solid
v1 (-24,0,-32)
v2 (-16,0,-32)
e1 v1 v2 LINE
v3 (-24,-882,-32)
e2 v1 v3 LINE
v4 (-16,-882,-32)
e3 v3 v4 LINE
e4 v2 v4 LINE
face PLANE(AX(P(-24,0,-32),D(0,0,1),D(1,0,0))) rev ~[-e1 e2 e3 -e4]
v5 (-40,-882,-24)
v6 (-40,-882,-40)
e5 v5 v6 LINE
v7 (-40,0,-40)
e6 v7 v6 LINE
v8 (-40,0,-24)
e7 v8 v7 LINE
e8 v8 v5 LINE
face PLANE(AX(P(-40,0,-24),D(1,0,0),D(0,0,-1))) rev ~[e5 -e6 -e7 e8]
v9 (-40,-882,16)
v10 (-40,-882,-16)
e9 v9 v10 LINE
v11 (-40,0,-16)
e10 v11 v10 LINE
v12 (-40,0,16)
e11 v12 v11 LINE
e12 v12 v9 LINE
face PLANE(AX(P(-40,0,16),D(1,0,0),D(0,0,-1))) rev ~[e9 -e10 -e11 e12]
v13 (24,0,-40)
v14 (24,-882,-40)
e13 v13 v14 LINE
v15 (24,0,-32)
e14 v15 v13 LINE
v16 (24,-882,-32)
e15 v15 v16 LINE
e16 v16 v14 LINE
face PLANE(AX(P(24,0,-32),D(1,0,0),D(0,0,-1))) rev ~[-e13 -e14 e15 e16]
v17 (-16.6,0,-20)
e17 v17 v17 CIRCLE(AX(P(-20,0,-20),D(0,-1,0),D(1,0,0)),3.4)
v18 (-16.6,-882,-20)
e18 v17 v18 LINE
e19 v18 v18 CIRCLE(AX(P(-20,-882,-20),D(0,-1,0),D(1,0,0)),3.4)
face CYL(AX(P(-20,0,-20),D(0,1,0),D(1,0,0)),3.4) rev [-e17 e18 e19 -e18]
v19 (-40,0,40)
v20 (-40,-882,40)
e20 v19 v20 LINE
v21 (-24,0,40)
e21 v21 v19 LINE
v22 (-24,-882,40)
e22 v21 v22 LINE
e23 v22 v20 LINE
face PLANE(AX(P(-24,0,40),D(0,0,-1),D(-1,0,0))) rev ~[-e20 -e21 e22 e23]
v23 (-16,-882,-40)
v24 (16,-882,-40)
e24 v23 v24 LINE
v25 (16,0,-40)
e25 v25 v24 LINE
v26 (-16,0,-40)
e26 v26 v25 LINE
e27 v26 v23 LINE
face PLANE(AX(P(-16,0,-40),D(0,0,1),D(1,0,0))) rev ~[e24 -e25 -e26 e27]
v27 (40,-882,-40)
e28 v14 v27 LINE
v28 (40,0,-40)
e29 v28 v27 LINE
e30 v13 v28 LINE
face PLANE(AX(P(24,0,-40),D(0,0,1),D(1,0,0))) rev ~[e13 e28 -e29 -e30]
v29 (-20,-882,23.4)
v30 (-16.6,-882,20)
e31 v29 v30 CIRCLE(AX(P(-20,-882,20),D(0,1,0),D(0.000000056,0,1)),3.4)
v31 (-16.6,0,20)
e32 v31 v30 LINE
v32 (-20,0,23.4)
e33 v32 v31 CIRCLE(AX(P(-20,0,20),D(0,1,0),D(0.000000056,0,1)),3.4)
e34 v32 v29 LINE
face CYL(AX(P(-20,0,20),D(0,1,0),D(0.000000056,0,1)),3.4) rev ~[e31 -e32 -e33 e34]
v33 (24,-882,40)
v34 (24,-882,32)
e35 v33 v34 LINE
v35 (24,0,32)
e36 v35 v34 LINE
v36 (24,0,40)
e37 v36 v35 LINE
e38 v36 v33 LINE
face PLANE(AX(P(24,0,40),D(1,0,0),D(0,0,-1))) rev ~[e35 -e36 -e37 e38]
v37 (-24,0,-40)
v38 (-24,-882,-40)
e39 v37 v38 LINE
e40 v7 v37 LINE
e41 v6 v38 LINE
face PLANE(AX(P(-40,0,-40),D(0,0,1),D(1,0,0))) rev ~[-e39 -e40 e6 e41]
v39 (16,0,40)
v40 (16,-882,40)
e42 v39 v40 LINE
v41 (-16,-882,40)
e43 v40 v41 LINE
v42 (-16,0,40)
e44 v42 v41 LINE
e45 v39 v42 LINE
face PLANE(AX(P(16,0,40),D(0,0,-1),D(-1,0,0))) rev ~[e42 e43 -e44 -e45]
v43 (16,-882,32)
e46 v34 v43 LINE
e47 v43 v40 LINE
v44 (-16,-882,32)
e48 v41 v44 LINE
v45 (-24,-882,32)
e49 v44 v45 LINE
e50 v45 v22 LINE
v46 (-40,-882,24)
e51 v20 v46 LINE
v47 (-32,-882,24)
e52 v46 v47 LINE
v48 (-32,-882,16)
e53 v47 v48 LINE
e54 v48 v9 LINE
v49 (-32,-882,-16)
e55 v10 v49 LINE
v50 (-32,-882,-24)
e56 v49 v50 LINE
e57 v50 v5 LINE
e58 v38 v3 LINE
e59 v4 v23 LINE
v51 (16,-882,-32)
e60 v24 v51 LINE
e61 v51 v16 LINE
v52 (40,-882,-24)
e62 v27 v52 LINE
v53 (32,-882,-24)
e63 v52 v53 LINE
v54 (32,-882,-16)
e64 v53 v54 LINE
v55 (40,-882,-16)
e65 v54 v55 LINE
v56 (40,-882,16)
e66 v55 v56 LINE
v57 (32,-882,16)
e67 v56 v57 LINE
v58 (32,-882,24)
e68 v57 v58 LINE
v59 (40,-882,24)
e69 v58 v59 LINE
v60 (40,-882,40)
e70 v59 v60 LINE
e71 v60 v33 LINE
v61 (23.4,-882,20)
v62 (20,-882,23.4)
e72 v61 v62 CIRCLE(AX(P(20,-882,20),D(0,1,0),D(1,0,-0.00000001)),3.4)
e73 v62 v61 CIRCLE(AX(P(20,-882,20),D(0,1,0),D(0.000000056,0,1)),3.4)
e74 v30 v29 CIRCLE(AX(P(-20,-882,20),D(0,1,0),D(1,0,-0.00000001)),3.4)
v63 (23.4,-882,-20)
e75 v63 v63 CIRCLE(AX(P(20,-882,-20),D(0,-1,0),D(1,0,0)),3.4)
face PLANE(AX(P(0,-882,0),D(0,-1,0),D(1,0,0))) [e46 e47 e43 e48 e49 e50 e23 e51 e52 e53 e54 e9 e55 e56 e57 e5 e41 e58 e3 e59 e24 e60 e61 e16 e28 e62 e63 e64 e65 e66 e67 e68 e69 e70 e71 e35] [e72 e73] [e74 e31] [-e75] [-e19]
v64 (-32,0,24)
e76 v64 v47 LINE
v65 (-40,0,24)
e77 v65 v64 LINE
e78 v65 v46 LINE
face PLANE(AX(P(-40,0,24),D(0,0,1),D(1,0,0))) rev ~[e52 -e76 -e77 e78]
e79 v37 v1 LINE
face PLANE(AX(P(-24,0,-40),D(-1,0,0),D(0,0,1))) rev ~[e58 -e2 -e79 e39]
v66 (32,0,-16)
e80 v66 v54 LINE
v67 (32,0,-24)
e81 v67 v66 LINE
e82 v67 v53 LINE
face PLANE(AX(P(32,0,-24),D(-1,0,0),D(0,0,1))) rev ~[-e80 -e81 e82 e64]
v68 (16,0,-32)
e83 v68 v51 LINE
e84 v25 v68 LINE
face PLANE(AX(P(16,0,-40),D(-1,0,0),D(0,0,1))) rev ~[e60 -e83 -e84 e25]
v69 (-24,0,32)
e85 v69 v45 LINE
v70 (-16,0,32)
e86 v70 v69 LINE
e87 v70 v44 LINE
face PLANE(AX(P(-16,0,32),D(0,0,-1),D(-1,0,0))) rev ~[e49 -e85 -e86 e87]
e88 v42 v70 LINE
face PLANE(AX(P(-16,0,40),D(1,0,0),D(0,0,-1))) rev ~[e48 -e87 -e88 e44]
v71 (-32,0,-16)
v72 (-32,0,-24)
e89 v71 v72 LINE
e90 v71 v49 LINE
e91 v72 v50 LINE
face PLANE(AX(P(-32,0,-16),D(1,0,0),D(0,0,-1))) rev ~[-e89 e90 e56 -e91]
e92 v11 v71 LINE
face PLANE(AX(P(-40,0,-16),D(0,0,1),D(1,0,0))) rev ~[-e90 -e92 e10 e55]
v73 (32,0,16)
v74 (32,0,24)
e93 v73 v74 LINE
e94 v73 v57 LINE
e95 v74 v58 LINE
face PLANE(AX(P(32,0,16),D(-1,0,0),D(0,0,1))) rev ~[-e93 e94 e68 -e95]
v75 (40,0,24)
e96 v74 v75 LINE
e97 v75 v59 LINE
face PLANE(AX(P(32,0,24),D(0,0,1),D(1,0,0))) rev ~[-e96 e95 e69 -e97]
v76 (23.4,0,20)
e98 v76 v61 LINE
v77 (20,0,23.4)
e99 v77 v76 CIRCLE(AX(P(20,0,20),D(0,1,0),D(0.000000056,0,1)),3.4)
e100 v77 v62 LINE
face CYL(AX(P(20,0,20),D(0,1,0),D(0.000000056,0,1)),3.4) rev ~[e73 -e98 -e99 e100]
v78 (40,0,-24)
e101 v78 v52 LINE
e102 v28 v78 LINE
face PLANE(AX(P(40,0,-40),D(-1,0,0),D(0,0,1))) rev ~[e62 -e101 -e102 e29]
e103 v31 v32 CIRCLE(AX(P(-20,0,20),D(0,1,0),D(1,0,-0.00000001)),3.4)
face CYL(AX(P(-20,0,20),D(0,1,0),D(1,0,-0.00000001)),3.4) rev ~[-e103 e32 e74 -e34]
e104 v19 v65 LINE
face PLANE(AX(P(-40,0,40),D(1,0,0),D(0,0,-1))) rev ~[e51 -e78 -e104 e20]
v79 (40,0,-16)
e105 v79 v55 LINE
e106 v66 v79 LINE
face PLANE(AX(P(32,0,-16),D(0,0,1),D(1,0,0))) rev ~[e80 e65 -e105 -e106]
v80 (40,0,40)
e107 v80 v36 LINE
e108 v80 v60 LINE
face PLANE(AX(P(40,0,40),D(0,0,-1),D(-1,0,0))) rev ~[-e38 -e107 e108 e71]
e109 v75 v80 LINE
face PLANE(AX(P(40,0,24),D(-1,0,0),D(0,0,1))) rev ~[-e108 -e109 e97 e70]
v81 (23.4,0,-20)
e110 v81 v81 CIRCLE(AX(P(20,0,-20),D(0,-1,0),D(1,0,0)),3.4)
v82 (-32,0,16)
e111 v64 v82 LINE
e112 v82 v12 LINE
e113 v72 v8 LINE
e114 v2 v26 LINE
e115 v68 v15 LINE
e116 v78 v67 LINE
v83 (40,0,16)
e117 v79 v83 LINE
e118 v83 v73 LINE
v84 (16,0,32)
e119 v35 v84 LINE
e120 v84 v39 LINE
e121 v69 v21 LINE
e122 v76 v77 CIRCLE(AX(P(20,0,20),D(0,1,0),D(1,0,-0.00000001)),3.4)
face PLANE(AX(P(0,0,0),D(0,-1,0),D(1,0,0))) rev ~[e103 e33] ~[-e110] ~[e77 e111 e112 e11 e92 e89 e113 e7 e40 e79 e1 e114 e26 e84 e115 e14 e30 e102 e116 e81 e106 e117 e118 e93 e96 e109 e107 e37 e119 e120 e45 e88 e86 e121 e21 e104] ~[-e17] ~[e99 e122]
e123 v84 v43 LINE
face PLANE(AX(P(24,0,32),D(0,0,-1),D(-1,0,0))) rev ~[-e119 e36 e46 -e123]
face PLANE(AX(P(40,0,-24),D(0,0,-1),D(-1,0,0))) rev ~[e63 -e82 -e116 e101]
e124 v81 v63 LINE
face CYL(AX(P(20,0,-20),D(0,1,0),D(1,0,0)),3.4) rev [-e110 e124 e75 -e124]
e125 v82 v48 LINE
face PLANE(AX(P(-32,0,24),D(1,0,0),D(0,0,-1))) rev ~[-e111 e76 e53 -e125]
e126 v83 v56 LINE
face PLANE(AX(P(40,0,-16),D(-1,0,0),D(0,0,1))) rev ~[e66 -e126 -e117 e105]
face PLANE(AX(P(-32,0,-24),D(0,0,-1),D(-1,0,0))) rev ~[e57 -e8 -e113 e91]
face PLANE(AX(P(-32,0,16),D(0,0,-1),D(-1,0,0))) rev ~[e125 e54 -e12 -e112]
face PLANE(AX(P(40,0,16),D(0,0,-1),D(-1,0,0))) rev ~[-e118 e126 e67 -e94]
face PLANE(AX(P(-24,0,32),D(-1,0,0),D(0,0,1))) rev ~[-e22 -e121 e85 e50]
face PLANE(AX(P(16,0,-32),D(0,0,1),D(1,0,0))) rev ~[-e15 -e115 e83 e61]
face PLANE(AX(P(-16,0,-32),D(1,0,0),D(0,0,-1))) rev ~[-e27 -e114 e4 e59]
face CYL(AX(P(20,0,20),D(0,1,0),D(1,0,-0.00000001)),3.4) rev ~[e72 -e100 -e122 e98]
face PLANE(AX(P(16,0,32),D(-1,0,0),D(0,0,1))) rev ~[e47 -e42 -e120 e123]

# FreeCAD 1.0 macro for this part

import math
import FreeCAD as App
import Part
import Sketcher

doc = App.newDocument("Part")
body = doc.addObject("PartDesign::Body", "Body")

# Sketch on XZ plane
sketch1 = doc.addObject("Sketcher::SketchObject", "Sketch")
body.addObject(sketch1)
sketch1.AttachmentSupport = (doc.XZ_Plane, [""])
sketch1.MapMode = "FlatFace"
sketch1.addGeometry([
    Part.LineSegment(App.Vector(40, 24, 0), App.Vector(40, 40, 0)),  # 0
    Part.LineSegment(App.Vector(40, 40, 0), App.Vector(24, 40, 0)),  # 1
    Part.LineSegment(App.Vector(24, 40, 0), App.Vector(24, 32, 0)),  # 2
    Part.LineSegment(App.Vector(24, 32, 0), App.Vector(16, 32, 0)),  # 3
    Part.LineSegment(App.Vector(16, 32, 0), App.Vector(16, 40, 0)),  # 4
    Part.LineSegment(App.Vector(16, 40, 0), App.Vector(-16, 40, 0)),  # 5
    Part.LineSegment(App.Vector(-16, 40, 0), App.Vector(-16, 32, 0)),  # 6
    Part.LineSegment(App.Vector(-16, 32, 0), App.Vector(-24, 32, 0)),  # 7
    Part.LineSegment(App.Vector(-24, 32, 0), App.Vector(-24, 40, 0)),  # 8
    Part.LineSegment(App.Vector(-24, 40, 0), App.Vector(-40, 40, 0)),  # 9
    Part.LineSegment(App.Vector(-40, 40, 0), App.Vector(-40, 24, 0)),  # 10
    Part.LineSegment(App.Vector(-40, 24, 0), App.Vector(-32, 24, 0)),  # 11
    Part.LineSegment(App.Vector(-32, 24, 0), App.Vector(-32, 16, 0)),  # 12
    Part.LineSegment(App.Vector(-32, 16, 0), App.Vector(-40, 16, 0)),  # 13
    Part.LineSegment(App.Vector(-40, 16, 0), App.Vector(-40, -16, 0)),  # 14
    Part.LineSegment(App.Vector(-40, -16, 0), App.Vector(-32, -16, 0)),  # 15
    Part.LineSegment(App.Vector(-32, -16, 0), App.Vector(-32, -24, 0)),  # 16
    Part.LineSegment(App.Vector(-32, -24, 0), App.Vector(-40, -24, 0)),  # 17
    Part.LineSegment(App.Vector(-40, -24, 0), App.Vector(-40, -40, 0)),  # 18
    Part.LineSegment(App.Vector(-40, -40, 0), App.Vector(-24, -40, 0)),  # 19
    Part.LineSegment(App.Vector(-24, -40, 0), App.Vector(-24, -32, 0)),  # 20
    Part.LineSegment(App.Vector(-24, -32, 0), App.Vector(-16, -32, 0)),  # 21
    Part.LineSegment(App.Vector(-16, -32, 0), App.Vector(-16, -40, 0)),  # 22
    Part.LineSegment(App.Vector(-16, -40, 0), App.Vector(16, -40, 0)),  # 23
    Part.LineSegment(App.Vector(16, -40, 0), App.Vector(16, -32, 0)),  # 24
    Part.LineSegment(App.Vector(16, -32, 0), App.Vector(24, -32, 0)),  # 25
    Part.LineSegment(App.Vector(24, -32, 0), App.Vector(24, -40, 0)),  # 26
    Part.LineSegment(App.Vector(24, -40, 0), App.Vector(40, -40, 0)),  # 27
    Part.LineSegment(App.Vector(40, -40, 0), App.Vector(40, -24, 0)),  # 28
    Part.LineSegment(App.Vector(40, -24, 0), App.Vector(32, -24, 0)),  # 29
    Part.LineSegment(App.Vector(32, -24, 0), App.Vector(32, -16, 0)),  # 30
    Part.LineSegment(App.Vector(32, -16, 0), App.Vector(40, -16, 0)),  # 31
    Part.LineSegment(App.Vector(40, -16, 0), App.Vector(40, 16, 0)),  # 32
    Part.LineSegment(App.Vector(40, 16, 0), App.Vector(32, 16, 0)),  # 33
    Part.LineSegment(App.Vector(32, 16, 0), App.Vector(32, 24, 0)),  # 34
    Part.LineSegment(App.Vector(32, 24, 0), App.Vector(40, 24, 0)),  # 35
    Part.Circle(App.Vector(-20, -20, 0), App.Vector(0, 0, 1), 3.4),  # 36
    Part.Circle(App.Vector(20, -20, 0), App.Vector(0, 0, 1), 3.4),  # 37
    Part.ArcOfCircle(Part.Circle(App.Vector(-20, 20, 0), App.Vector(0, 0, 1), 3.4), math.radians(0), math.radians(90)),  # 38
    Part.ArcOfCircle(Part.Circle(App.Vector(-20, 20, 0), App.Vector(0, 0, 1), 3.4), math.radians(90), math.radians(360)),  # 39
    Part.ArcOfCircle(Part.Circle(App.Vector(20, 20, 0), App.Vector(0, 0, 1), 3.4), math.radians(0), math.radians(90)),  # 40
    Part.ArcOfCircle(Part.Circle(App.Vector(20, 20, 0), App.Vector(0, 0, 1), 3.4), math.radians(90), math.radians(360)),  # 41
], False)
sketch1.addConstraint([
    Sketcher.Constraint("Coincident", 0, 2, 1, 1),
    Sketcher.Constraint("Coincident", 1, 2, 2, 1),
    Sketcher.Constraint("Coincident", 2, 2, 3, 1),
    Sketcher.Constraint("Coincident", 3, 2, 4, 1),
    Sketcher.Constraint("Coincident", 4, 2, 5, 1),
    Sketcher.Constraint("Coincident", 5, 2, 6, 1),
    Sketcher.Constraint("Coincident", 6, 2, 7, 1),
    Sketcher.Constraint("Coincident", 7, 2, 8, 1),
    Sketcher.Constraint("Coincident", 8, 2, 9, 1),
    Sketcher.Constraint("Coincident", 9, 2, 10, 1),
    Sketcher.Constraint("Coincident", 10, 2, 11, 1),
    Sketcher.Constraint("Coincident", 11, 2, 12, 1),
    Sketcher.Constraint("Coincident", 12, 2, 13, 1),
    Sketcher.Constraint("Coincident", 13, 2, 14, 1),
    Sketcher.Constraint("Coincident", 14, 2, 15, 1),
    Sketcher.Constraint("Coincident", 15, 2, 16, 1),
    Sketcher.Constraint("Coincident", 16, 2, 17, 1),
    Sketcher.Constraint("Coincident", 17, 2, 18, 1),
    Sketcher.Constraint("Coincident", 18, 2, 19, 1),
    Sketcher.Constraint("Coincident", 19, 2, 20, 1),
    Sketcher.Constraint("Coincident", 20, 2, 21, 1),
    Sketcher.Constraint("Coincident", 21, 2, 22, 1),
    Sketcher.Constraint("Coincident", 22, 2, 23, 1),
    Sketcher.Constraint("Coincident", 23, 2, 24, 1),
    Sketcher.Constraint("Coincident", 24, 2, 25, 1),
    Sketcher.Constraint("Coincident", 25, 2, 26, 1),
    Sketcher.Constraint("Coincident", 26, 2, 27, 1),
    Sketcher.Constraint("Coincident", 27, 2, 28, 1),
    Sketcher.Constraint("Coincident", 28, 2, 29, 1),
    Sketcher.Constraint("Coincident", 29, 2, 30, 1),
    Sketcher.Constraint("Coincident", 30, 2, 31, 1),
    Sketcher.Constraint("Coincident", 31, 2, 32, 1),
    Sketcher.Constraint("Coincident", 32, 2, 33, 1),
    Sketcher.Constraint("Coincident", 33, 2, 34, 1),
    Sketcher.Constraint("Coincident", 34, 2, 35, 1),
    Sketcher.Constraint("Coincident", 35, 2, 0, 1),
    Sketcher.Constraint("Tangent", 38, 1, 39, 2),
    Sketcher.Constraint("Coincident", 39, 1, 38, 2),
    Sketcher.Constraint("Tangent", 40, 1, 41, 2),
    Sketcher.Constraint("Coincident", 41, 1, 40, 2),
    Sketcher.Constraint("Vertical", 0),
    Sketcher.Constraint("Horizontal", 1),
    Sketcher.Constraint("Vertical", 2),
    Sketcher.Constraint("Horizontal", 3),
    Sketcher.Constraint("Vertical", 4),
    Sketcher.Constraint("Horizontal", 5),
    Sketcher.Constraint("Vertical", 6),
    Sketcher.Constraint("Horizontal", 7),
    Sketcher.Constraint("Vertical", 8),
    Sketcher.Constraint("Horizontal", 9),
    Sketcher.Constraint("Vertical", 10),
    Sketcher.Constraint("Horizontal", 11),
    Sketcher.Constraint("Vertical", 12),
    Sketcher.Constraint("Horizontal", 13),
    Sketcher.Constraint("Vertical", 14),
    Sketcher.Constraint("Horizontal", 15),
    Sketcher.Constraint("Vertical", 16),
    Sketcher.Constraint("Horizontal", 17),
    Sketcher.Constraint("Vertical", 18),
    Sketcher.Constraint("Horizontal", 19),
    Sketcher.Constraint("Vertical", 20),
    Sketcher.Constraint("Horizontal", 21),
    Sketcher.Constraint("Vertical", 22),
    Sketcher.Constraint("Horizontal", 23),
    Sketcher.Constraint("Vertical", 24),
    Sketcher.Constraint("Horizontal", 25),
    Sketcher.Constraint("Vertical", 26),
    Sketcher.Constraint("Horizontal", 27),
    Sketcher.Constraint("Vertical", 28),
    Sketcher.Constraint("Horizontal", 29),
    Sketcher.Constraint("Vertical", 30),
    Sketcher.Constraint("Horizontal", 31),
    Sketcher.Constraint("Vertical", 32),
    Sketcher.Constraint("Horizontal", 33),
    Sketcher.Constraint("Vertical", 34),
    Sketcher.Constraint("Horizontal", 35),
    Sketcher.Constraint("Equal", 36, 37),
    Sketcher.Constraint("Equal", 37, 38),
    Sketcher.Constraint("Equal", 39, 40),
    Sketcher.Constraint("Symmetric", 37, 3, 38, 3, -1, 1),
    Sketcher.Constraint("Symmetric", 36, 3, 40, 3, -1, 1),
    Sketcher.Constraint("Symmetric", 0, 2, 18, 2, -1, 1),
    Sketcher.Constraint("Symmetric", 2, 2, 20, 2, -1, 1),
    Sketcher.Constraint("Symmetric", 4, 2, 22, 2, -1, 1),
    Sketcher.Constraint("Symmetric", 6, 2, 24, 2, -1, 1),
    Sketcher.Constraint("Symmetric", 8, 2, 26, 2, -1, 1),
    Sketcher.Constraint("Symmetric", 10, 2, 28, 2, -1, 1),
    Sketcher.Constraint("Symmetric", 12, 2, 30, 2, -1, 1),
    Sketcher.Constraint("Symmetric", 14, 2, 32, 2, -1, 1),
    Sketcher.Constraint("Symmetric", 16, 2, 34, 2, -1, 1),
    Sketcher.Constraint("Symmetric", 36, 3, 37, 3, -2),
    Sketcher.Constraint("Symmetric", 3, 2, 6, 2, -2),
    Sketcher.Constraint("Symmetric", 1, 2, 8, 2, -2),
    Sketcher.Constraint("Symmetric", 17, 2, 28, 2, -2),
    Sketcher.Constraint("Symmetric", 15, 2, 30, 2, -2),
    Sketcher.Constraint("Horizontal", 1, 2, 4, 2),
    Sketcher.Constraint("Horizontal", 41, 3, 38, 1),
    Sketcher.Constraint("Horizontal", 38, 1, 40, 1),
    Sketcher.Constraint("Vertical", 10, 2, 13, 2),
    Sketcher.Constraint("Vertical", 38, 3, 39, 1),
    Sketcher.Constraint("Vertical", 40, 3, 41, 1),
    Sketcher.Constraint("Equal", 7, 11),
    Sketcher.Constraint("Equal", 27, 0),
    Sketcher.Constraint("Equal", 35, 2),
    Sketcher.Constraint("Equal", 8, 12),
    Sketcher.Constraint("Equal", 23, 14),
    Sketcher.Constraint("Diameter", 36, 6.8),
    Sketcher.Constraint("DistanceX", 1, 2, 1, 1, 16.0),
    Sketcher.Constraint("DistanceX", 3, 2, 3, 1, 8.0),
    Sketcher.Constraint("DistanceX", 5, 2, 5, 1, 32.0),
    Sketcher.Constraint("DistanceX", 36, 3, -1, 1, 20.0),
    Sketcher.Constraint("DistanceY", 36, 3, -1, 1, 20.0),
])
pad1 = doc.addObject("PartDesign::Pad", "Pad")
body.addObject(pad1)
pad1.Profile = sketch1
pad1.Length = 882

doc.recompute()
